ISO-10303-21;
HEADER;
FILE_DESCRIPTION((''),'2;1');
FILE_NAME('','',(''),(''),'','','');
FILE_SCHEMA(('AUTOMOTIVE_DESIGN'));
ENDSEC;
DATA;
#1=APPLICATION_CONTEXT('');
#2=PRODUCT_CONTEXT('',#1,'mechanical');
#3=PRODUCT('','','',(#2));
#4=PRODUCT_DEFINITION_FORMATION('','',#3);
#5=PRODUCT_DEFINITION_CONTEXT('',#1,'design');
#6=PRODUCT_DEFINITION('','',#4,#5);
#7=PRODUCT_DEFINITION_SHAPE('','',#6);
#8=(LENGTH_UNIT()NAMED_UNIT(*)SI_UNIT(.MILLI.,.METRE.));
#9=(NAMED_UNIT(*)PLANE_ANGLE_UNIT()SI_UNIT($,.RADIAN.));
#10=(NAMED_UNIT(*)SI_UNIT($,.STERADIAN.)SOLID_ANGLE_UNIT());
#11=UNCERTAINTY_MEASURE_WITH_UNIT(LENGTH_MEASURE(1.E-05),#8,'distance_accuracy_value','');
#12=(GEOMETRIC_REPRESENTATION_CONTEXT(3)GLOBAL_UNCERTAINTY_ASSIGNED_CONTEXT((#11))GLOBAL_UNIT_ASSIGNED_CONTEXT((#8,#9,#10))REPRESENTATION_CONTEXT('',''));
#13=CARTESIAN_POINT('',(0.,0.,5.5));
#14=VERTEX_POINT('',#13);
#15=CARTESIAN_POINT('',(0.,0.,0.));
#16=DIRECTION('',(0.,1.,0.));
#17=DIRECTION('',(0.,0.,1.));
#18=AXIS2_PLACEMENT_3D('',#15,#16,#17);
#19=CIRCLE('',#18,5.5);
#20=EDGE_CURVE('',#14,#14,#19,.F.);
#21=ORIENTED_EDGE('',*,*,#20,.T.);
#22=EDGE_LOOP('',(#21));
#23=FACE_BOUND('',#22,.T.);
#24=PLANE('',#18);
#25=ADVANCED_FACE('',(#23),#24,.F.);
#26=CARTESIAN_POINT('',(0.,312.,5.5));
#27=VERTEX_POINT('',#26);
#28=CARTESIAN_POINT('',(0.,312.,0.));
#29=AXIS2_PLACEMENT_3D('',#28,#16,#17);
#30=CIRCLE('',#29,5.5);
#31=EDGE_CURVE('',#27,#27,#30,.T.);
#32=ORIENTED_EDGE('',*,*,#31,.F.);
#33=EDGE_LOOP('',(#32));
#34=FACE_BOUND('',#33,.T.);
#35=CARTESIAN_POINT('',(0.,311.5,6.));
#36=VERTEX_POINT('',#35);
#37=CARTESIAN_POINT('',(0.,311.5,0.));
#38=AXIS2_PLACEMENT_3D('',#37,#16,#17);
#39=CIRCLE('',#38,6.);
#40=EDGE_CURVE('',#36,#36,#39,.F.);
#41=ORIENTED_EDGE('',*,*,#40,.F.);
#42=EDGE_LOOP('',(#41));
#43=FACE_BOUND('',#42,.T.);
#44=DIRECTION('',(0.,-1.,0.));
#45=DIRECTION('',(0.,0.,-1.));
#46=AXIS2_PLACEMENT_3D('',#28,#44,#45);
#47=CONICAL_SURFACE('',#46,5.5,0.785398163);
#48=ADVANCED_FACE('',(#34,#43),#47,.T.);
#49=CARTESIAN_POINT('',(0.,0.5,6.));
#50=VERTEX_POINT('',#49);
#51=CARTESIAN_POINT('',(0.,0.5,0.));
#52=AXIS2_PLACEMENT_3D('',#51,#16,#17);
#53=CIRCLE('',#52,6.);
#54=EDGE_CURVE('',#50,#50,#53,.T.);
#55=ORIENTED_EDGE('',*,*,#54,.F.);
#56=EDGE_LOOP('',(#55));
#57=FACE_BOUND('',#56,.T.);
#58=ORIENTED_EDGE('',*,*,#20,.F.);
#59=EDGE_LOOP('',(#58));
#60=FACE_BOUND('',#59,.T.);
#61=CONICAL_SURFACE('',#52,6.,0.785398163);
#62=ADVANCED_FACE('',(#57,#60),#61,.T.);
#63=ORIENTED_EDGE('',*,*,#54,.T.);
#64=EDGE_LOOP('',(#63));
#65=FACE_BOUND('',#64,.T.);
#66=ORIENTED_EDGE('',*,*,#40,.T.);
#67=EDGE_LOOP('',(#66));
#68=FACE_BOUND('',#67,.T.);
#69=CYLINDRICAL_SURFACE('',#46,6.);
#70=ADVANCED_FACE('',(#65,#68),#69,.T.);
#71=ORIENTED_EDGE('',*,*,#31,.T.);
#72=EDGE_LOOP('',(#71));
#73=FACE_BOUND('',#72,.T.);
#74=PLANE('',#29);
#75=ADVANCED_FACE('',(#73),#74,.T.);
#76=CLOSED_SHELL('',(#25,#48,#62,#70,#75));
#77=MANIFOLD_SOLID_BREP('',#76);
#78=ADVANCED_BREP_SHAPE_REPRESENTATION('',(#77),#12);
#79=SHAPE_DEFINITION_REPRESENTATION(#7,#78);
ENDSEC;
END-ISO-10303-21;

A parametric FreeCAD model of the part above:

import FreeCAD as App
import Part
import Sketcher
from FreeCAD import Vector


def edges_at(feature, points):
    """Names of the edges that pass closest to the given points."""
    edges = feature.Shape.Edges
    near = lambda p: min(range(len(edges)), key=lambda i: edges[i].distToShape(Part.Vertex(*p))[0])
    return sorted({f"Edge{near(p) + 1}" for p in points})

doc = App.newDocument("Part")
params = doc.addObject("Spreadsheet::Sheet", "Params")
for row, (alias, value) in enumerate([
    ("sketch1_diameter", "12 mm"),
    ("pad1_length", "312 mm"),
    ("chamfer_size", "0.5 mm"),
], start=1):
    params.set(f"A{row}", alias)
    params.set(f"B{row}", "=" + value)
    params.setAlias(f"B{row}", alias)

body = doc.addObject("PartDesign::Body", "Body")

sketch1 = doc.addObject("Sketcher::SketchObject", "Sketch")
body.addObject(sketch1)
sketch1.AttachmentSupport = (doc.XZ_Plane, [""])
sketch1.MapMode = "FlatFace"
sketch1.addGeometry(Part.Circle(Vector(0, 0, 0), Vector(0, 0, 1), 6), False)
sketch1.addConstraint(Sketcher.Constraint("Coincident", 0, 3, -1, 1))
sketch1.addConstraint(Sketcher.Constraint("Diameter", 0, 12.0))
sketch1.setExpression("Constraints[1]", "Params.sketch1_diameter")
pad1 = doc.addObject("PartDesign::Pad", "Pad")
body.addObject(pad1)
pad1.Profile = sketch1
pad1.setExpression("Length", "Params.pad1_length")
pad1.Reversed = True
doc.recompute()

chamfer = doc.addObject("PartDesign::Chamfer", "Chamfer")
body.addObject(chamfer)
chamfer.Base = (pad1, edges_at(pad1, [(-6, 0, 0), (-6, 312, 0)]))
chamfer.setExpression("Size", "Params.chamfer_size")

doc.recompute()
